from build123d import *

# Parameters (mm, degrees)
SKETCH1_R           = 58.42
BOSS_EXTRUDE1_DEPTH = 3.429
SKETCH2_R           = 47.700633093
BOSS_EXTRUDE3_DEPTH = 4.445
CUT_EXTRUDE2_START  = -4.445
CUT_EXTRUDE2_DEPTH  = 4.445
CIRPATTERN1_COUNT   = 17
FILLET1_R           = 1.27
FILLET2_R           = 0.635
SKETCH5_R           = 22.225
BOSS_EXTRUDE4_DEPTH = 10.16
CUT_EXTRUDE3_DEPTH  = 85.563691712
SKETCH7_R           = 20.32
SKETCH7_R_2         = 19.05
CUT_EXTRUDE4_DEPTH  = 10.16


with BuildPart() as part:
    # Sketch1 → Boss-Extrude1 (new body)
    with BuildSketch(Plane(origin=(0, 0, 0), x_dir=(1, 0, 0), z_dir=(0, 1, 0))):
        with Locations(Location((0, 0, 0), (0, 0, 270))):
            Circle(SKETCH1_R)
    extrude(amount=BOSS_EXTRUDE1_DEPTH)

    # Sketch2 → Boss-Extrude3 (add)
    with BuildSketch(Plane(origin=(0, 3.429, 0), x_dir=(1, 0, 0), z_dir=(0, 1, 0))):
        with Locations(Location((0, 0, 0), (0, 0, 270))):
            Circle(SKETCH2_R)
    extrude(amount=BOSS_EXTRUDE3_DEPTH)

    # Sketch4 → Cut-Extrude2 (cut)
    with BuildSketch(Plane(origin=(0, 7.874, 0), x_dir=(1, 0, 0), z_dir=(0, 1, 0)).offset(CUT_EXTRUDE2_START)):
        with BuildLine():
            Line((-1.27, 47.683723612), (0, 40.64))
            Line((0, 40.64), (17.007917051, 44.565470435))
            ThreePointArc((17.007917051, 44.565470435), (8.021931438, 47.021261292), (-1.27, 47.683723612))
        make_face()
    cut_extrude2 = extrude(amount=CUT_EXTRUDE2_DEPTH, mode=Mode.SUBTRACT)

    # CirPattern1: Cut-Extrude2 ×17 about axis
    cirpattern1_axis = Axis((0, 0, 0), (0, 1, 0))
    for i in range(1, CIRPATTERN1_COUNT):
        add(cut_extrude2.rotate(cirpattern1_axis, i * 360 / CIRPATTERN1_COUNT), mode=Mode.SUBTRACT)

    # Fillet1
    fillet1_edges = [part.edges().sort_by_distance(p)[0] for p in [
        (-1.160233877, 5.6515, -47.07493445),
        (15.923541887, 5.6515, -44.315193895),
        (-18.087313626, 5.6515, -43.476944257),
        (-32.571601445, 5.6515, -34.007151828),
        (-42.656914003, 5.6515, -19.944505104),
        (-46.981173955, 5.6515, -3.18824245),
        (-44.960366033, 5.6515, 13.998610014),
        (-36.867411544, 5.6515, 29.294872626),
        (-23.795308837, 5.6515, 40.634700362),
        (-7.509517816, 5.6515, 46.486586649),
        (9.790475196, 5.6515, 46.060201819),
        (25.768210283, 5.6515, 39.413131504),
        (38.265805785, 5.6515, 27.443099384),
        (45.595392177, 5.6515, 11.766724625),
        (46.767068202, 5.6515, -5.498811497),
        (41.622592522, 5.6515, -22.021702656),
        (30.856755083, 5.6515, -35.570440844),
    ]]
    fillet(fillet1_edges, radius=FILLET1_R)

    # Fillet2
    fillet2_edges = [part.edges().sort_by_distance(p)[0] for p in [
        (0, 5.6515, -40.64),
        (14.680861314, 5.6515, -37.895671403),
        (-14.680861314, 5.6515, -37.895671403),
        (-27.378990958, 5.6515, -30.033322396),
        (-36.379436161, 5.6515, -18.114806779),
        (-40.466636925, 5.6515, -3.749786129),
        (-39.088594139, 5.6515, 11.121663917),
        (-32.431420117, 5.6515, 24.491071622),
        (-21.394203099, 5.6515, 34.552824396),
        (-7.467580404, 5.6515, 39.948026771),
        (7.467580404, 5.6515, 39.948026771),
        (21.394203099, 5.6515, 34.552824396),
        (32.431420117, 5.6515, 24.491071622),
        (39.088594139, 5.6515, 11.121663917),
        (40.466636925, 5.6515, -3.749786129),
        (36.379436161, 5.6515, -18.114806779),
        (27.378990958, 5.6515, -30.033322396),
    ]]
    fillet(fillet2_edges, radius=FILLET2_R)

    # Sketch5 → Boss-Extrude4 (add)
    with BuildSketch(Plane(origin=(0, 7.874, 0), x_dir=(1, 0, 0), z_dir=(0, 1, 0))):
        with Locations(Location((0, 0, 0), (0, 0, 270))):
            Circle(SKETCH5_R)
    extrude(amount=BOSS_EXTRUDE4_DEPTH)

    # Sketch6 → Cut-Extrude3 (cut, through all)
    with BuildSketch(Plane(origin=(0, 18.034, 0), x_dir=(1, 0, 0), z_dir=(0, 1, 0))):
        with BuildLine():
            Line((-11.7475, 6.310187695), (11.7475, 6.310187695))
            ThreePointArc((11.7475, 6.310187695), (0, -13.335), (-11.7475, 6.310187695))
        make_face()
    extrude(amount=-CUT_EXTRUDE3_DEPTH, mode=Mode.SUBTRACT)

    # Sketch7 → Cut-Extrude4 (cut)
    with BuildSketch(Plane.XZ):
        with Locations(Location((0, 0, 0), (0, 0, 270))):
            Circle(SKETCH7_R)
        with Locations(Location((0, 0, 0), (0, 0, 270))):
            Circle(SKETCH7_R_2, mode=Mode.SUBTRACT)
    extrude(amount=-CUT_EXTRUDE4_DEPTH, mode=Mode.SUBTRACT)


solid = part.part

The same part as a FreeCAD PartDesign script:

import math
import FreeCAD as App
import Part
import Sketcher

V = App.Vector
Q = App.Units.Quantity


def edges_at(feature, points):
    """Names of the edges that pass closest to the given points."""
    edges = feature.Shape.Edges
    near = lambda p: min(range(len(edges)), key=lambda i: edges[i].distToShape(Part.Vertex(*p))[0])
    return sorted({f"Edge{near(p) + 1}" for p in points})

doc = App.newDocument("Part")
body = doc.addObject("PartDesign::Body", "Body")

# Sketch on XZ plane
sketch1 = body.newObject("Sketcher::SketchObject", "Sketch")
sketch1.AttachmentSupport = (doc.getObject("XZ_Plane"), [""])
sketch1.MapMode = "FlatFace"
sketch1.addGeometry(Part.Circle(V(0, 0, 0), V(0, 0, 1), 58.42), False)
sketch1.addConstraint(Sketcher.Constraint("Coincident", 0, 3, -1, 1))
sketch1.addConstraint(Sketcher.Constraint("Diameter", 0, Q("4.6 in")))
pad1 = body.newObject("PartDesign::Pad", "Pad")
pad1.Profile = sketch1
pad1.Length = Q("0.135 in")
pad1.Reversed = True

# Sketch on XZ plane
sketch2 = body.newObject("Sketcher::SketchObject", "Sketch001")
sketch2.AttachmentSupport = (doc.getObject("XZ_Plane"), [""])
sketch2.MapMode = "FlatFace"
sketch2.AttachmentOffset = App.Placement(V(0, 0, -0.135 * 25.4), App.Rotation())
sketch2.addGeometry(Part.Circle(V(0, 0, 0), V(0, 0, 1), 47.700633), False)
sketch2.addConstraint(Sketcher.Constraint("Coincident", 0, 3, -1, 1))
sketch2.addConstraint(Sketcher.Constraint("Diameter", 0, Q("95.401266 mm")))
pad2 = body.newObject("PartDesign::Pad", "Pad001")
pad2.Profile = sketch2
pad2.Length = Q("0.175 in")
pad2.Reversed = True

# Sketch on XZ plane
sketch3 = body.newObject("Sketcher::SketchObject", "Sketch002")
sketch3.AttachmentSupport = (doc.getObject("XZ_Plane"), [""])
sketch3.MapMode = "FlatFace"
sketch3.AttachmentOffset = App.Placement(V(0, 0, -0.135 * 25.4), App.Rotation())
sketch3.addGeometry(Part.LineSegment(V(-1.27, -47.683724, 0), V(0, -40.64, 0)), False)
sketch3.addGeometry(Part.LineSegment(V(0, -40.64, 0), V(17.007917, -44.56547, 0)), False)
sketch3.addGeometry(Part.ArcOfCircle(Part.Circle(V(0, 0, 0), V(0, 0, 1), 47.700633), math.radians(-91.525645), math.radians(-69.1112)), False)
sketch3.addConstraint(Sketcher.Constraint("Coincident", 0, 2, 1, 1))
sketch3.addConstraint(Sketcher.Constraint("Coincident", 1, 2, 2, 2))
sketch3.addConstraint(Sketcher.Constraint("Coincident", 2, 1, 0, 1))
sketch3.addConstraint(Sketcher.Constraint("Coincident", 2, 3, -1, 1))
sketch3.addConstraint(Sketcher.Constraint("PointOnObject", 0, 2, -2))
sketch3.addConstraint(Sketcher.Constraint("DistanceY", 0, 2, -1, 1, Q("1.6 in")))
sketch3.addConstraint(Sketcher.Constraint("DistanceX", 2, 1, -1, 1, Q("0.05 in")))
sketch3.addConstraint(Sketcher.Constraint("Radius", 2, Q("47.700633 mm")))
sketch3.addConstraint(Sketcher.Constraint("DistanceY", 1, 2, -1, 1, Q("44.56547 mm")))
pocket1 = body.newObject("PartDesign::Pocket", "Pocket")
pocket1.Profile = sketch3
pocket1.Length = Q("0.175 in")
doc.recompute()

polarpattern = body.newObject("PartDesign::PolarPattern", "PolarPattern")
polarpattern.Originals = [pocket1]
polarpattern.Axis = (doc.getObject("Y_Axis"), [""])
polarpattern.Angle = 360
polarpattern.Occurrences = 17
body.Tip = polarpattern
doc.recompute()

fillet = body.newObject("PartDesign::Fillet", "Fillet")
fillet.Base = (polarpattern, edges_at(polarpattern, [
    (-1.16, 5.652, -47.075),
    (15.924, 5.652, -44.315),
    (-18.087, 5.652, -43.477),
    (-32.572, 5.652, -34.007),
    (-42.657, 5.652, -19.945),
    (-46.981, 5.652, -3.188),
    (-44.96, 5.652, 13.999),
    (-36.867, 5.652, 29.295),
    (-23.795, 5.652, 40.635),
    (-7.51, 5.652, 46.487),
    (9.79, 5.652, 46.06),
    (25.768, 5.652, 39.413),
    (38.266, 5.652, 27.443),
    (45.595, 5.652, 11.767),
    (46.767, 5.652, -5.499),
    (41.623, 5.652, -22.022),
    (30.857, 5.652, -35.57),
]))
fillet.Radius = Q("0.05 in")
doc.recompute()

fillet2 = body.newObject("PartDesign::Fillet", "Fillet001")
fillet2.Base = (fillet, edges_at(fillet, [
    (0, 5.652, -40.64),
    (14.681, 5.652, -37.896),
    (-14.681, 5.652, -37.896),
    (-27.379, 5.652, -30.033),
    (-36.379, 5.652, -18.115),
    (-40.467, 5.652, -3.75),
    (-39.089, 5.652, 11.122),
    (-32.431, 5.652, 24.491),
    (-21.394, 5.652, 34.553),
    (-7.468, 5.652, 39.948),
    (7.468, 5.652, 39.948),
    (21.394, 5.652, 34.553),
    (32.431, 5.652, 24.491),
    (39.089, 5.652, 11.122),
    (40.467, 5.652, -3.75),
    (36.379, 5.652, -18.115),
    (27.379, 5.652, -30.033),
]))
fillet2.Radius = Q("0.025 in")

# Sketch on XZ plane
sketch4 = body.newObject("Sketcher::SketchObject", "Sketch003")
sketch4.AttachmentSupport = (doc.getObject("XZ_Plane"), [""])
sketch4.MapMode = "FlatFace"
sketch4.AttachmentOffset = App.Placement(V(0, 0, -0.31 * 25.4), App.Rotation())
sketch4.addGeometry(Part.Circle(V(0, 0, 0), V(0, 0, 1), 22.225), False)
sketch4.addConstraint(Sketcher.Constraint("Coincident", 0, 3, -1, 1))
sketch4.addConstraint(Sketcher.Constraint("Diameter", 0, Q("1.75 in")))
pad3 = body.newObject("PartDesign::Pad", "Pad002")
pad3.Profile = sketch4
pad3.Length = Q("0.4 in")
pad3.Reversed = True

# Sketch on XZ plane
sketch5 = body.newObject("Sketcher::SketchObject", "Sketch004")
sketch5.AttachmentSupport = (doc.getObject("XZ_Plane"), [""])
sketch5.MapMode = "FlatFace"
sketch5.AttachmentOffset = App.Placement(V(0, 0, -0.71 * 25.4), App.Rotation())
sketch5.addGeometry(Part.LineSegment(V(11.7475, -6.310188, 0), V(-11.7475, -6.310188, 0)), False)
sketch5.addGeometry(Part.ArcOfCircle(Part.Circle(V(0, 0, 0), V(0, 0, 1), 13.335), math.radians(-28.242537), math.radians(208.242537)), False)
sketch5.addConstraint(Sketcher.Constraint("Coincident", 0, 1, 1, 1))
sketch5.addConstraint(Sketcher.Constraint("Coincident", 1, 2, 0, 2))
sketch5.addConstraint(Sketcher.Constraint("Horizontal", 0))
sketch5.addConstraint(Sketcher.Constraint("Coincident", 1, 3, -1, 1))
sketch5.addConstraint(Sketcher.Constraint("Radius", 1, Q("0.525 in")))
sketch5.addConstraint(Sketcher.Constraint("DistanceX", 0, 2, 0, 1, Q("0.925 in")))
pocket2 = body.newObject("PartDesign::Pocket", "Pocket001")
pocket2.Profile = sketch5
pocket2.Type = "ThroughAll"
pocket2.Reversed = True

# Sketch on XZ plane
sketch6 = body.newObject("Sketcher::SketchObject", "Sketch005")
sketch6.AttachmentSupport = (doc.getObject("XZ_Plane"), [""])
sketch6.MapMode = "FlatFace"
sketch6.addGeometry(Part.Circle(V(0, 0, 0), V(0, 0, 1), 20.32), False)
sketch6.addGeometry(Part.Circle(V(0, 0, 0), V(0, 0, 1), 19.05), False)
sketch6.addConstraint(Sketcher.Constraint("Coincident", 0, 3, -1, 1))
sketch6.addConstraint(Sketcher.Constraint("Coincident", 1, 3, -1, 1))
sketch6.addConstraint(Sketcher.Constraint("Diameter", 0, Q("1.6 in")))
sketch6.addConstraint(Sketcher.Constraint("Diameter", 1, Q("1.5 in")))
pocket3 = body.newObject("PartDesign::Pocket", "Pocket002")
pocket3.Profile = sketch6
pocket3.Length = Q("0.4 in")

doc.recompute()
